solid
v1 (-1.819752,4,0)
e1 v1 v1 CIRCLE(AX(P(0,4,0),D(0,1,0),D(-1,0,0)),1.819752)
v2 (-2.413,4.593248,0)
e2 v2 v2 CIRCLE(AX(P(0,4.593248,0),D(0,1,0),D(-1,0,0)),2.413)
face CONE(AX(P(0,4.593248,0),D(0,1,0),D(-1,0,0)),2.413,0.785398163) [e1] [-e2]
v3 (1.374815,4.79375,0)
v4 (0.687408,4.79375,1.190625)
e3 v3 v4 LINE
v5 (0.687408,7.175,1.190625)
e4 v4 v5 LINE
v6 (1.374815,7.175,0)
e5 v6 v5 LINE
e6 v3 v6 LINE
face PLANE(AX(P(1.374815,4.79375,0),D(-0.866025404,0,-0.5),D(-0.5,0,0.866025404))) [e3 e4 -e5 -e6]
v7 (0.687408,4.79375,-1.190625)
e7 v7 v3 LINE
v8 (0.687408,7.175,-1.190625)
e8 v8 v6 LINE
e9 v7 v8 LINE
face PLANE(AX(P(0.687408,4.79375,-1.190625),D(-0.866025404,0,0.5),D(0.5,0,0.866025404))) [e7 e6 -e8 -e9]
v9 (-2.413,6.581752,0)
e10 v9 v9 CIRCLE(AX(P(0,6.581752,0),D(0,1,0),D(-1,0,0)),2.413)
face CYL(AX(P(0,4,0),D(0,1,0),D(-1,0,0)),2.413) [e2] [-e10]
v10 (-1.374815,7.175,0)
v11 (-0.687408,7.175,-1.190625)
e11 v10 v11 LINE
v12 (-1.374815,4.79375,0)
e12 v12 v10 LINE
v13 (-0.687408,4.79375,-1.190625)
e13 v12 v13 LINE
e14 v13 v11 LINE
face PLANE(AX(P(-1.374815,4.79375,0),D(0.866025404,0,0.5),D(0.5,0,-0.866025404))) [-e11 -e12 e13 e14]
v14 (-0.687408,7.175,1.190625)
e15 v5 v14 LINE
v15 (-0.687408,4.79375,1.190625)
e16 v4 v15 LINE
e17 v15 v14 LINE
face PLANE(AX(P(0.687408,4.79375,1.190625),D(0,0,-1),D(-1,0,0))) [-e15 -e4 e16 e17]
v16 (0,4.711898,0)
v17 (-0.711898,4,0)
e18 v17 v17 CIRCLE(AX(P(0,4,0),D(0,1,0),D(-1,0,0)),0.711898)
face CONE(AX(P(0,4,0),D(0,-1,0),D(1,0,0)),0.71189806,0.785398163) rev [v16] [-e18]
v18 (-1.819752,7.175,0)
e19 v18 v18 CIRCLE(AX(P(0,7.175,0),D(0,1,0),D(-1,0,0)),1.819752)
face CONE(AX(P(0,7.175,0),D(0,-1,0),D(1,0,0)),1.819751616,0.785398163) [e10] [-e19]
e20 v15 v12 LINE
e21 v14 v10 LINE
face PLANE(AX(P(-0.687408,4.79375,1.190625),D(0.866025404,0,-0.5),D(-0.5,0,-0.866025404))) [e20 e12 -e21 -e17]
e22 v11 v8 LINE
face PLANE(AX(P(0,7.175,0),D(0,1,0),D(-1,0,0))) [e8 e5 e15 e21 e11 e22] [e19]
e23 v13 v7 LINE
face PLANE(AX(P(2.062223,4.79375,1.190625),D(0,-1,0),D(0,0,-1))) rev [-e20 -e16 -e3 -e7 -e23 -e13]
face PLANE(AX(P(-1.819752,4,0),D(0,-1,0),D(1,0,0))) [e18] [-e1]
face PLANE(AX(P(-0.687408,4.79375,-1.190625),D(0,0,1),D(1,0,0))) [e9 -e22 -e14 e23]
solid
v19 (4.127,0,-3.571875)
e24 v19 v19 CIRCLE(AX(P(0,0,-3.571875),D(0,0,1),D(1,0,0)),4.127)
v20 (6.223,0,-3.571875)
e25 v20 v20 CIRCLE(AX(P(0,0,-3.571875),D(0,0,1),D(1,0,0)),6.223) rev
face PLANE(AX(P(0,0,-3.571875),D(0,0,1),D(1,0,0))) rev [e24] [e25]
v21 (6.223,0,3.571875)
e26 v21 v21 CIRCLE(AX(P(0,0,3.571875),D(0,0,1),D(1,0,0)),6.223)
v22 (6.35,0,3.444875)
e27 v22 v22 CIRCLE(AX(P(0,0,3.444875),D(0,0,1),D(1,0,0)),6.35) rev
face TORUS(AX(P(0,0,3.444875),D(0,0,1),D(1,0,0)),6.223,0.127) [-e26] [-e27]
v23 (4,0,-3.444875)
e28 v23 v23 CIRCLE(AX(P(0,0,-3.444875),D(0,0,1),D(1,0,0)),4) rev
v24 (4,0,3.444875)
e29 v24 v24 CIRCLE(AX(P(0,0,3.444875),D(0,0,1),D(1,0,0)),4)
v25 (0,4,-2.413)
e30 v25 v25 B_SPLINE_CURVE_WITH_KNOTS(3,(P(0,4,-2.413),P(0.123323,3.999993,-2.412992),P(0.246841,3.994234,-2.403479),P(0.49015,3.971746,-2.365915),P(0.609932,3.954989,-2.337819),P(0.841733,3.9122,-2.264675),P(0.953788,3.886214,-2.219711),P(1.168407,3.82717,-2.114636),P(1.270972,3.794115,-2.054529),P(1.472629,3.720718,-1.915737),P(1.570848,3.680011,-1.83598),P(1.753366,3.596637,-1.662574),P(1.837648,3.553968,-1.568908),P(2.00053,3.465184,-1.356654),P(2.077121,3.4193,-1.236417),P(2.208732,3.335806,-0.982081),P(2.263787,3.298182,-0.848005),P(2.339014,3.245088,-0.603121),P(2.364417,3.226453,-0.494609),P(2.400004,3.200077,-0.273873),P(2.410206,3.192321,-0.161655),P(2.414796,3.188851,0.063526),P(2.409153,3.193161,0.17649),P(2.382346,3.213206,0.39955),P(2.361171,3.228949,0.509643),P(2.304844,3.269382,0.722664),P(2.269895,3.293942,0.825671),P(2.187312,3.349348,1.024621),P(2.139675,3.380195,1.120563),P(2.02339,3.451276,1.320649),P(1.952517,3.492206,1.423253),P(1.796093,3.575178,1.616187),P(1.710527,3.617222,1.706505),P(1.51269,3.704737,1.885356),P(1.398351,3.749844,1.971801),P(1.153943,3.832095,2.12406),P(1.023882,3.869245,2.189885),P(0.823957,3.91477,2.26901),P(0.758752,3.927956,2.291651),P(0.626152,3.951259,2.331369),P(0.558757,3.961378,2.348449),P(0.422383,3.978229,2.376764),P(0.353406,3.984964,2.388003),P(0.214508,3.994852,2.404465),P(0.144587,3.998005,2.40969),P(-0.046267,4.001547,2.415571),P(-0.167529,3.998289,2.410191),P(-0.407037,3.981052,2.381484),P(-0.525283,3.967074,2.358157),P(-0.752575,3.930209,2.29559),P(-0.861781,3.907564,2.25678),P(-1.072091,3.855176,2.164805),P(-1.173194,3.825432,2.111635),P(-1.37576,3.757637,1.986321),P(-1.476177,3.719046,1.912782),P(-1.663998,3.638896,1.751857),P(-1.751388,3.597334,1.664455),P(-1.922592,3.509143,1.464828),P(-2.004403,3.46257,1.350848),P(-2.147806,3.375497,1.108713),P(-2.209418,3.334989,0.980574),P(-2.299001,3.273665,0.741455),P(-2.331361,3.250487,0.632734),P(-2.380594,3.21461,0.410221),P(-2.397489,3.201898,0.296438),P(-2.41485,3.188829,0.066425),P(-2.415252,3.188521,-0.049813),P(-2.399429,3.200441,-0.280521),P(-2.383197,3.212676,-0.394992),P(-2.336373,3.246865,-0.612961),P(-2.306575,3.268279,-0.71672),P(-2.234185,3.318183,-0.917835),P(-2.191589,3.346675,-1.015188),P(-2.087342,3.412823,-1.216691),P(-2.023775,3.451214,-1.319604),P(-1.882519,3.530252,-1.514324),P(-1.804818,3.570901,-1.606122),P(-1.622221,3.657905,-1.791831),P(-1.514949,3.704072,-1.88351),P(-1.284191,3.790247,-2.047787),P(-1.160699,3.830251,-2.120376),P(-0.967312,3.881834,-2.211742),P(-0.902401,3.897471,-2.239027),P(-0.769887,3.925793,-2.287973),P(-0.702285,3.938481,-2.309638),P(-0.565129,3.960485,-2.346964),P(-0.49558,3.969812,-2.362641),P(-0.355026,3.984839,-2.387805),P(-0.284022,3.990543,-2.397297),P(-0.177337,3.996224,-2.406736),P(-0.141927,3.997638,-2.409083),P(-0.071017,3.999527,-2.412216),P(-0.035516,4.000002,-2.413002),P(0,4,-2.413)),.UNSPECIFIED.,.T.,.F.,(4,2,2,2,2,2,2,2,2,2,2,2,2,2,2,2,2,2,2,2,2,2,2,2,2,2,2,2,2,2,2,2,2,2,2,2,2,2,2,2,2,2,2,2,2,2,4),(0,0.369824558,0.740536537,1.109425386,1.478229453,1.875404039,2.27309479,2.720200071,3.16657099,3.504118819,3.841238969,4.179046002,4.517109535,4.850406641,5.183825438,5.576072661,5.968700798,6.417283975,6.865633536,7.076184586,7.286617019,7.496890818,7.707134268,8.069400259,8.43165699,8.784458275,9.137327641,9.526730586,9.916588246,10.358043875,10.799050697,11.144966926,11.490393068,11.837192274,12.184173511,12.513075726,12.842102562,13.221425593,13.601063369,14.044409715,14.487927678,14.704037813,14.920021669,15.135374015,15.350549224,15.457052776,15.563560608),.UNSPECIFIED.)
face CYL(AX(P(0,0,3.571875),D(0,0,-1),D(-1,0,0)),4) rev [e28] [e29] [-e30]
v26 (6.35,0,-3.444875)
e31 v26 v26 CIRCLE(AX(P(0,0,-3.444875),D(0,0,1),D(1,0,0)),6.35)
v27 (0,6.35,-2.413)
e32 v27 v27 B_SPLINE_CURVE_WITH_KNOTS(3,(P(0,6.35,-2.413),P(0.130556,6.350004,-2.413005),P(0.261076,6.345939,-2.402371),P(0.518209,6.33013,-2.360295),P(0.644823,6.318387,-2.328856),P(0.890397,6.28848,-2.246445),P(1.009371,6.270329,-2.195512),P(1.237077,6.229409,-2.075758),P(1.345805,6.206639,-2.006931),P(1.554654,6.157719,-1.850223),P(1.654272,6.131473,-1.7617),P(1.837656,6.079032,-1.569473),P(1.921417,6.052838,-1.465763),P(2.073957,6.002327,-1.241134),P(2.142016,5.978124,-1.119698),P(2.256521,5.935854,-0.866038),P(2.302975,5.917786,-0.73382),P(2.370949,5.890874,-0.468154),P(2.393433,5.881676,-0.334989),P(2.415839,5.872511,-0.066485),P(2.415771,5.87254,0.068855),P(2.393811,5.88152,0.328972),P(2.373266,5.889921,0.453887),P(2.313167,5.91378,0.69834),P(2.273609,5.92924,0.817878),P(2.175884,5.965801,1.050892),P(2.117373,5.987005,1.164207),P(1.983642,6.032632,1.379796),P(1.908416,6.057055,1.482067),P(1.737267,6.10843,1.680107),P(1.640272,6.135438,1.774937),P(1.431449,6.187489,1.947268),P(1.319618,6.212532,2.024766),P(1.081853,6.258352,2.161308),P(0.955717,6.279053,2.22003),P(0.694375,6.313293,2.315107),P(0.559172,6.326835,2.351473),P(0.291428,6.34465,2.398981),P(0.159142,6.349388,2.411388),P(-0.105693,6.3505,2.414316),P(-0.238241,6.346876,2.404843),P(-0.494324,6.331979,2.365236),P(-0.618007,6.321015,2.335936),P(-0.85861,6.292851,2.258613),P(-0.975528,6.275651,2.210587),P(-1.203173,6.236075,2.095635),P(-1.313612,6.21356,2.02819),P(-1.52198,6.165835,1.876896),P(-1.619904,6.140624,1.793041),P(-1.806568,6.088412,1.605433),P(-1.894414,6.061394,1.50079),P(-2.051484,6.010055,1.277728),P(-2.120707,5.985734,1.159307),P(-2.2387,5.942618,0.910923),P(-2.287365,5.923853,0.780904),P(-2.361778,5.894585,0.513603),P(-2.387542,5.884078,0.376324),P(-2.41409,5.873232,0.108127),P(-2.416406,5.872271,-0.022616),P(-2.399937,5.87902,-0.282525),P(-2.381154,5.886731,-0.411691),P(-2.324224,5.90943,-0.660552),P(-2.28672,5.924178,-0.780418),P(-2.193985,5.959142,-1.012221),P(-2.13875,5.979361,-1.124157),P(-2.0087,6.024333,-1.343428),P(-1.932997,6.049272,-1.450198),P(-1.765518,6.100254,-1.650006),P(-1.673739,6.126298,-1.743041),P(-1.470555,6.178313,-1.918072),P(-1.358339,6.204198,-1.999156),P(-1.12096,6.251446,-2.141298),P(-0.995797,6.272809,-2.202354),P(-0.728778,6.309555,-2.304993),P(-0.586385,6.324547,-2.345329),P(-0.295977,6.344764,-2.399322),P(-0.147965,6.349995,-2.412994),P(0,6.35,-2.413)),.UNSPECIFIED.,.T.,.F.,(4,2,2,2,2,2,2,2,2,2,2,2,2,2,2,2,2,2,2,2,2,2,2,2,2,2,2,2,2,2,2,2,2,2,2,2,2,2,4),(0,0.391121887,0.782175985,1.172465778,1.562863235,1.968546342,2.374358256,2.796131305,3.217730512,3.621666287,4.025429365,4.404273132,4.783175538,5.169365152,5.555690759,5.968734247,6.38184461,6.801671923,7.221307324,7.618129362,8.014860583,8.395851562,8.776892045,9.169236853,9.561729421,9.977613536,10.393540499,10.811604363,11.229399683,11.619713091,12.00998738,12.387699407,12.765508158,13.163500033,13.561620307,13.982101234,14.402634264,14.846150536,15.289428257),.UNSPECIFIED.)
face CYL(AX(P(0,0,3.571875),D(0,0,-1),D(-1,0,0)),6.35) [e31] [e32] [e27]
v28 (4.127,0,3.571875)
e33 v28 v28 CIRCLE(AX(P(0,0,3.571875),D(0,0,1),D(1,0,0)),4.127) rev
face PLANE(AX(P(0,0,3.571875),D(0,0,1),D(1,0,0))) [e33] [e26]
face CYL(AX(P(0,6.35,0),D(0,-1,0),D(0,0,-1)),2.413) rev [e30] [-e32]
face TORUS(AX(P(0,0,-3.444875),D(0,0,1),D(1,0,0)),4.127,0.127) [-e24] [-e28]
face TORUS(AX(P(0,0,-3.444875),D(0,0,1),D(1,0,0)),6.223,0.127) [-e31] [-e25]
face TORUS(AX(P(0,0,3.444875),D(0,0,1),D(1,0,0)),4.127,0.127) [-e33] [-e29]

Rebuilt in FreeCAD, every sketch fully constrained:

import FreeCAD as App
import Part
import Sketcher

V = App.Vector
Q = App.Units.Quantity


def edges_at(feature, points):
    """Names of the edges that pass closest to the given points."""
    edges = feature.Shape.Edges
    near = lambda p: min(range(len(edges)), key=lambda i: edges[i].distToShape(Part.Vertex(*p))[0])
    return sorted({f"Edge{near(p) + 1}" for p in points})


def add_polygon(sketch, points):
    """Adds a closed chain of lines whose ends are joined by coincident constraints."""
    first, n = sketch.GeometryCount, len(points)
    for a, b in zip(points, points[1:] + points[:1]):
        sketch.addGeometry(Part.LineSegment(App.Vector(*a, 0), App.Vector(*b, 0)), False)
    for i in range(n):
        sketch.addConstraint(Sketcher.Constraint("Coincident", first + i, 2, first + (i + 1) % n, 1))

doc = App.newDocument("Part")
body = doc.addObject("PartDesign::Body", "Body")

# Sketch on XY plane
sketch1 = body.newObject("Sketcher::SketchObject", "Sketch")
sketch1.AttachmentSupport = (doc.getObject("XY_Plane"), [""])
sketch1.MapMode = "FlatFace"
sketch1.addGeometry([
    Part.Circle(V(0, 0, 0), V(0, 0, 1), 6.3),
    Part.Circle(V(0, 0, 0), V(0, 0, 1), 4),
], False)
sketch1.addConstraint([
    Sketcher.Constraint("Coincident", 0, 3, -1, 1),
    Sketcher.Constraint("Coincident", 1, 3, -1, 1),
    Sketcher.Constraint("Diameter", 0, Q("0.5 in")),
    Sketcher.Constraint("Diameter", 1, Q("8 mm")),
])
pad1 = body.newObject("PartDesign::Pad", "Pad")
pad1.Profile = sketch1
pad1.Length = Q("0.28125 in")
pad1.Midplane = True

# Sketch on XZ plane
sketch2 = body.newObject("Sketcher::SketchObject", "Sketch001")
sketch2.AttachmentSupport = (doc.getObject("XZ_Plane"), [""])
sketch2.MapMode = "FlatFace"
sketch2.addGeometry(Part.Circle(V(0, 0, 0), V(0, 0, 1), 2.4), False)
sketch2.addConstraint([
    Sketcher.Constraint("Coincident", 0, 3, -1, 1),
    Sketcher.Constraint("Diameter", 0, Q("0.19 in")),
])
pocket1 = body.newObject("PartDesign::Pocket", "Pocket")
pocket1.Profile = sketch2
pocket1.Type = "ThroughAll"
doc.recompute()

fillet = body.newObject("PartDesign::Fillet", "Fillet")
fillet.Base = (pocket1, edges_at(pocket1, [
    (-6.35, 0, -3.572),
    (-6.35, 0, 3.572),
    (-4, 0, -3.572),
    (-4, 0, 3.572),
]))
fillet.Radius = Q("0.005 in")
body2 = doc.addObject("PartDesign::Body", "Body001")

# Sketch on XY plane
sketch3 = body2.newObject("Sketcher::SketchObject", "Sketch002")
sketch3.AttachmentSupport = (doc.getObject("XY_Plane001"), [""])
sketch3.MapMode = "FlatFace"
add_polygon(sketch3, [(-1.8, 4), (-0.7, 4), (0, 4.7), (0, 7.2), (-1.8, 7.2), (-2.4, 6.6), (-2.4, 4.6)])  # lines 0-6
sketch3.addConstraint([
    Sketcher.Constraint("Horizontal", 0),
    Sketcher.Constraint("Vertical", 2),
    Sketcher.Constraint("Horizontal", 3),
    Sketcher.Constraint("Vertical", 5),
    Sketcher.Constraint("PointOnObject", 1, 2, -2),
    Sketcher.Constraint("Parallel", 1, 4),
    Sketcher.Constraint("Perpendicular", 4, 6),
    Sketcher.Constraint("Vertical", 3, 2, 6, 2),
    Sketcher.Constraint("Equal", 4, 6),
    Sketcher.Constraint("DistanceX", 4, 2, -1, 1, Q("0.095 in")),
    Sketcher.Constraint("DistanceY", 0, 2, 2, 2, Q("0.125 in")),
    Sketcher.Constraint("DistanceY", 2, 1, 2, 2, Q("2.463102 mm")),
    Sketcher.Constraint("DistanceX", 3, 2, 3, 1, Q("1.819752 mm")),
    Sketcher.Constraint("DistanceY", -1, 1, 0, 2, Q("4 mm")),
])
revolution = body2.newObject("PartDesign::Revolution", "Revolution")
revolution.Profile = sketch3
revolution.ReferenceAxis = (sketch3, ["V_Axis"])
revolution.Angle = 360

# Sketch on XZ plane
sketch4 = body2.newObject("Sketcher::SketchObject", "Sketch003")
sketch4.AttachmentSupport = (doc.getObject("XZ_Plane001"), [""])
sketch4.MapMode = "FlatFace"
sketch4.AttachmentOffset = App.Placement(V(0, 0, -7.175), App.Rotation())
add_polygon(sketch4, [(1.4, 0), (0.7, 1.2), (-0.7, 1.2), (-1.4, 0), (-0.7, -1.2), (0.7, -1.2)])  # lines 0-5
sketch4.addConstraint([
    Sketcher.Constraint("Horizontal", 1),
    Sketcher.Constraint("Horizontal", 4),
    Sketcher.Constraint("Symmetric", 0, 2, 3, 2, -1, 1),
    Sketcher.Constraint("Symmetric", 2, 2, 5, 2, -1, 1),
    Sketcher.Constraint("PointOnObject", 2, 2, -1),
    Sketcher.Constraint("Parallel", 2, 5),
    Sketcher.Constraint("Vertical", 1, 2, 3, 2),
    Sketcher.Constraint("Angle", 0, Q("120 deg")),
    Sketcher.Constraint("DistanceY", -1, 1, 0, 2, Q("0.046875 in")),
    Sketcher.Constraint("DistanceX", 1, 2, 1, 1, Q("1.374815 mm")),
])
pocket2 = body2.newObject("PartDesign::Pocket", "Pocket001")
pocket2.Profile = sketch4
pocket2.Length = Q("0.09375 in")
pocket2.Reversed = True

doc.recompute()
